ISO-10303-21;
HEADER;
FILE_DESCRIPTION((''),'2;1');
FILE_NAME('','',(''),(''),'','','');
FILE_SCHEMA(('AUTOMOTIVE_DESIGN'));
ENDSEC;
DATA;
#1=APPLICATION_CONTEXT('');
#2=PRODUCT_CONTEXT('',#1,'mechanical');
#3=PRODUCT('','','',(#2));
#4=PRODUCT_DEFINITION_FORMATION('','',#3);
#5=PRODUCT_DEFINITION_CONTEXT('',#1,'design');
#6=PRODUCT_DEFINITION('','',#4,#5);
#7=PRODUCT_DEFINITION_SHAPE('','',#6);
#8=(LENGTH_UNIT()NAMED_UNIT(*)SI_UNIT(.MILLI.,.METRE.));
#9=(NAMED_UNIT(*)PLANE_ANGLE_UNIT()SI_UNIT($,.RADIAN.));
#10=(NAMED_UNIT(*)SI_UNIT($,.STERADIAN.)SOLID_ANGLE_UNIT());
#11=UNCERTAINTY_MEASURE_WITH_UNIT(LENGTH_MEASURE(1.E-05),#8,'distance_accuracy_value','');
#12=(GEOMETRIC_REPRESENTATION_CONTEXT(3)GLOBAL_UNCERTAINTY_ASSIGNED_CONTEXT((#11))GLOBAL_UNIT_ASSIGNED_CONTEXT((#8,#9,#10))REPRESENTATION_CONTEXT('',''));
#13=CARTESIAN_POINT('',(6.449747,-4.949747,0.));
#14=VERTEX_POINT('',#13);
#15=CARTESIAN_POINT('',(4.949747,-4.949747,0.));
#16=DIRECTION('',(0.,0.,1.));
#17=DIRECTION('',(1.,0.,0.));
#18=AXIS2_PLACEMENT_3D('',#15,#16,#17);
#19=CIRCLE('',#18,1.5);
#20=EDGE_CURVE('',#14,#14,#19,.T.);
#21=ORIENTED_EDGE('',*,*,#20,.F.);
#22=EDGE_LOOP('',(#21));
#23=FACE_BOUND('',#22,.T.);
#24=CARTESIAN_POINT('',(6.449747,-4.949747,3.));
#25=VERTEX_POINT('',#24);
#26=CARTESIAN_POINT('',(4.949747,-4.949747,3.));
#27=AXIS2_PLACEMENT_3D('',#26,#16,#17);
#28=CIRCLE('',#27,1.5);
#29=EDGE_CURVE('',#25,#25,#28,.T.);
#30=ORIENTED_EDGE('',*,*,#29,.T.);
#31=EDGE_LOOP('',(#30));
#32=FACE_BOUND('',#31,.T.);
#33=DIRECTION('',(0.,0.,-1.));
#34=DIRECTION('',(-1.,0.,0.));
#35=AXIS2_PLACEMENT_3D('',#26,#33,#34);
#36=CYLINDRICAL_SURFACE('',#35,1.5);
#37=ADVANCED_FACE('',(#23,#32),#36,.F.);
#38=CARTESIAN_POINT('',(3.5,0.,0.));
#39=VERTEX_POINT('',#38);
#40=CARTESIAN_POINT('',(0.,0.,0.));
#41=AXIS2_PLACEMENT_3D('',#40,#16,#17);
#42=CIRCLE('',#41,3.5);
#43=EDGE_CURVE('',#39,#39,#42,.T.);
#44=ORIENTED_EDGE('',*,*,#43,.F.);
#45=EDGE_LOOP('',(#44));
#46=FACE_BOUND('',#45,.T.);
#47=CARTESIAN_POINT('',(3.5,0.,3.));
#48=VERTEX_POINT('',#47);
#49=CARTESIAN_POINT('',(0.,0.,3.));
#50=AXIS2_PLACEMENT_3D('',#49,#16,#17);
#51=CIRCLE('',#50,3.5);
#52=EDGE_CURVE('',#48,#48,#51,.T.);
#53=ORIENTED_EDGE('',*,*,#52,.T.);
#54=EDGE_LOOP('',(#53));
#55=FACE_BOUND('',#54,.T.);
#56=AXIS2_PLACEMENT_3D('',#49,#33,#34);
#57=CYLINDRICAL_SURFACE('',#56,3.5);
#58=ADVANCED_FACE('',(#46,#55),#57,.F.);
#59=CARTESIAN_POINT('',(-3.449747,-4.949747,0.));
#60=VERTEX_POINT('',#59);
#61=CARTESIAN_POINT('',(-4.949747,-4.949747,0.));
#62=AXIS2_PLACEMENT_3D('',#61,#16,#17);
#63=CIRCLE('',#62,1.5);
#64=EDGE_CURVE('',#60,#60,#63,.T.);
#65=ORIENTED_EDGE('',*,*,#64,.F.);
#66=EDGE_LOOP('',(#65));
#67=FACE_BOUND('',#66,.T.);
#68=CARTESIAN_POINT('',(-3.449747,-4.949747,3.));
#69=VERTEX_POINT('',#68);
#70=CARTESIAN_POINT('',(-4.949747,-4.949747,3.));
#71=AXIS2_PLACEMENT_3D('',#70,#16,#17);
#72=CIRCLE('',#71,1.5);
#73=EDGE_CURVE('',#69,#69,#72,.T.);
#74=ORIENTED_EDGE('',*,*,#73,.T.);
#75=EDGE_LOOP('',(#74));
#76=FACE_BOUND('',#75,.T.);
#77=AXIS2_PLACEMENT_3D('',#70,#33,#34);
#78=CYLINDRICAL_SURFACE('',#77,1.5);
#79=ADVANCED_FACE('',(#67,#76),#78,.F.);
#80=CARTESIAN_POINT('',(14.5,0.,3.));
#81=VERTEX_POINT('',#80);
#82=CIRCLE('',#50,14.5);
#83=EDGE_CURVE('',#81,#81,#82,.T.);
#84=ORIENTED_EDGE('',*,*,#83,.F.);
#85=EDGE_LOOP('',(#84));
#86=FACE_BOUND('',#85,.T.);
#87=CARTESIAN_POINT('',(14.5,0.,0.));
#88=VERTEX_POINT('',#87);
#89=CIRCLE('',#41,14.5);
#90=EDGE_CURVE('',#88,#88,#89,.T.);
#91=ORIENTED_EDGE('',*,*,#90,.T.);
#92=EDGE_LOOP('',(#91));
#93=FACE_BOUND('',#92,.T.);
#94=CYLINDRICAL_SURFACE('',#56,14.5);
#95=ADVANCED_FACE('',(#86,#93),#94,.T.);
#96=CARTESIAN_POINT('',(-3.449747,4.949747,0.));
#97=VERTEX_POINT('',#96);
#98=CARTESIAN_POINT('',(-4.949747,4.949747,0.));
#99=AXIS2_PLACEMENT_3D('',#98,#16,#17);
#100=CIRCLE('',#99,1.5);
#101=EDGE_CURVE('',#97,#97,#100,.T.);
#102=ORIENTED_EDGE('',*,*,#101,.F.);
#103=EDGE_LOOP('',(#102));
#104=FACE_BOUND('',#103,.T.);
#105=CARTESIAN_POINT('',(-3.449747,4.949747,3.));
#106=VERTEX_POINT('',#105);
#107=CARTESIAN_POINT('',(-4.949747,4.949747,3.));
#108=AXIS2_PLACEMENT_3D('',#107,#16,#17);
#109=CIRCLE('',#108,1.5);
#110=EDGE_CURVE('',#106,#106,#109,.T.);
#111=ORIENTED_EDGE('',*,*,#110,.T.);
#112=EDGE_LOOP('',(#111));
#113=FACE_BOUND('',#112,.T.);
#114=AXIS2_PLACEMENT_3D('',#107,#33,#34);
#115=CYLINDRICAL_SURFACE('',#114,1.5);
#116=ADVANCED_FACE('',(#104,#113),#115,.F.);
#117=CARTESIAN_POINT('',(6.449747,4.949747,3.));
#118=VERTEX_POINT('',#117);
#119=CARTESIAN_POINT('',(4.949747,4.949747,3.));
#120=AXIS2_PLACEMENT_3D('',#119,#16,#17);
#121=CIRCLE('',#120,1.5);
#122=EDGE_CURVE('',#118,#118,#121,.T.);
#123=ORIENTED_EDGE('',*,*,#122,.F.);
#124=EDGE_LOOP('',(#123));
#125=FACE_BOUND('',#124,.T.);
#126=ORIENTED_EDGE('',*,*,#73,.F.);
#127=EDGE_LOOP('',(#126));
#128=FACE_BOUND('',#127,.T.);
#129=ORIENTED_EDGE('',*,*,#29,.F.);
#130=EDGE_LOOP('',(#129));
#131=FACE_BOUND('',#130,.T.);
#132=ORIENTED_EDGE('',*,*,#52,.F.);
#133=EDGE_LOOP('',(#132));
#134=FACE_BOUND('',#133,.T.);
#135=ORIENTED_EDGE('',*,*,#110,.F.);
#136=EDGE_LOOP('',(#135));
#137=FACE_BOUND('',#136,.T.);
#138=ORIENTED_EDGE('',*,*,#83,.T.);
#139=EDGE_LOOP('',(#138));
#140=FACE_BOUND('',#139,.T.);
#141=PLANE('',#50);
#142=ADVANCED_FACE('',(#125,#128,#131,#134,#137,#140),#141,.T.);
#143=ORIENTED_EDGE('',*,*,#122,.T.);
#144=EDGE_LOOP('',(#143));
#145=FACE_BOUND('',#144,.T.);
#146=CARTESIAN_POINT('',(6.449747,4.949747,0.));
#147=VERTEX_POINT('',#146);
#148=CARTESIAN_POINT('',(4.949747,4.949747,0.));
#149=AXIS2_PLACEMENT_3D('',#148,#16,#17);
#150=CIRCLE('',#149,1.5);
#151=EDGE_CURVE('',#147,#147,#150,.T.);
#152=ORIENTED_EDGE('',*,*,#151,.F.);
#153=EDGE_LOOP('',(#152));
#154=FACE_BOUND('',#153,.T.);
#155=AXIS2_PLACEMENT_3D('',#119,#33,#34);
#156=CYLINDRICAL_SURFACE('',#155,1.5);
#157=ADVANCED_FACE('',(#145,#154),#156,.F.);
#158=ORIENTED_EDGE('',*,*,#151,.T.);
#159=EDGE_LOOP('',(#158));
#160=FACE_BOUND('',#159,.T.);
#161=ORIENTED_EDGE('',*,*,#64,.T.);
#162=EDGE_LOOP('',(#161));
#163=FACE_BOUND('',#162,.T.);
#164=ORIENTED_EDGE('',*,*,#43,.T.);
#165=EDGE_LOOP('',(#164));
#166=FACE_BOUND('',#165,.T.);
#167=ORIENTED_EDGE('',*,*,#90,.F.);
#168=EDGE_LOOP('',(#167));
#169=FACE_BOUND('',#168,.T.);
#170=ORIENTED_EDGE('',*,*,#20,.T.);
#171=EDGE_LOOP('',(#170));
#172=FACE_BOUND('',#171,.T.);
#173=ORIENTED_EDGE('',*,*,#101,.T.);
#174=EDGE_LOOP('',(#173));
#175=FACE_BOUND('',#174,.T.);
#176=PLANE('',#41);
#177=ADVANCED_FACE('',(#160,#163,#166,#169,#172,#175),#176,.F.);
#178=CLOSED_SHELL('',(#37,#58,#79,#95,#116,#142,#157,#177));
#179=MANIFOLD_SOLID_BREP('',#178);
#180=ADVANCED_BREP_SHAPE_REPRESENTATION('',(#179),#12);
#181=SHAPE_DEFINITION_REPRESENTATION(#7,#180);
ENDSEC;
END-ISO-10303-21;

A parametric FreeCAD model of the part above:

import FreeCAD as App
import Part
import Sketcher
from FreeCAD import Vector
Q = App.Units.Quantity

doc = App.newDocument("Part")
params = doc.addObject("Spreadsheet::Sheet", "Params")
for row, (alias, value) in enumerate([
    ("sketch1_diameter", "29 mm"),
    ("sketch1_diameter2", "3 mm"),
    ("sketch1_diameter3", "7 mm"),
    ("pad1_length", "3 mm"),
], start=1):
    params.set(f"A{row}", alias)
    params.set(f"B{row}", "=" + value)
    params.setAlias(f"B{row}", alias)

body = doc.addObject("PartDesign::Body", "Body")

# Sketch on XY plane
sketch1 = body.newObject("Sketcher::SketchObject", "Sketch")
sketch1.AttachmentSupport = (doc.getObject("XY_Plane"), [""])
sketch1.MapMode = "FlatFace"
sketch1.addGeometry(Part.Circle(Vector(0, 0, 0), Vector(0, 0, 1), 14.5), False)
sketch1.addGeometry(Part.Circle(Vector(-4.9, -4.9, 0), Vector(0, 0, 1), 1.5), False)
sketch1.addGeometry(Part.Circle(Vector(4.9, -4.9, 0), Vector(0, 0, 1), 1.5), False)
sketch1.addGeometry(Part.Circle(Vector(-4.9, 4.9, 0), Vector(0, 0, 1), 1.5), False)
sketch1.addGeometry(Part.Circle(Vector(0, 0, 0), Vector(0, 0, 1), 3.5), False)
sketch1.addGeometry(Part.Circle(Vector(4.9, 4.9, 0), Vector(0, 0, 1), 1.5), False)
sketch1.addConstraint(Sketcher.Constraint("Coincident", 0, 3, -1, 1))
sketch1.addConstraint(Sketcher.Constraint("Coincident", 4, 3, -1, 1))
sketch1.addConstraint(Sketcher.Constraint("Equal", 1, 2))
sketch1.addConstraint(Sketcher.Constraint("Equal", 2, 3))
sketch1.addConstraint(Sketcher.Constraint("Equal", 3, 5))
sketch1.addConstraint(Sketcher.Constraint("Symmetric", 2, 3, 3, 3, -1, 1))
sketch1.addConstraint(Sketcher.Constraint("Symmetric", 1, 3, 5, 3, -1, 1))
sketch1.addConstraint(Sketcher.Constraint("Symmetric", 1, 3, 2, 3, -2))
sketch1.addConstraint(Sketcher.Constraint("Diameter", 0, Q("29 mm")))
sketch1.addConstraint(Sketcher.Constraint("Diameter", 1, Q("3 mm")))
sketch1.addConstraint(Sketcher.Constraint("Diameter", 4, Q("7 mm")))
sketch1.addConstraint(Sketcher.Constraint("DistanceX", 1, 3, -1, 1, Q("4.949747 mm")))
sketch1.addConstraint(Sketcher.Constraint("DistanceY", 1, 3, -1, 1, Q("4.949747 mm")))
sketch1.setExpression("Constraints[8]", "Params.sketch1_diameter")
sketch1.setExpression("Constraints[9]", "Params.sketch1_diameter2")
sketch1.setExpression("Constraints[10]", "Params.sketch1_diameter3")
pad1 = body.newObject("PartDesign::Pad", "Pad")
pad1.Profile = sketch1
pad1.setExpression("Length", "Params.pad1_length")

doc.recompute()
